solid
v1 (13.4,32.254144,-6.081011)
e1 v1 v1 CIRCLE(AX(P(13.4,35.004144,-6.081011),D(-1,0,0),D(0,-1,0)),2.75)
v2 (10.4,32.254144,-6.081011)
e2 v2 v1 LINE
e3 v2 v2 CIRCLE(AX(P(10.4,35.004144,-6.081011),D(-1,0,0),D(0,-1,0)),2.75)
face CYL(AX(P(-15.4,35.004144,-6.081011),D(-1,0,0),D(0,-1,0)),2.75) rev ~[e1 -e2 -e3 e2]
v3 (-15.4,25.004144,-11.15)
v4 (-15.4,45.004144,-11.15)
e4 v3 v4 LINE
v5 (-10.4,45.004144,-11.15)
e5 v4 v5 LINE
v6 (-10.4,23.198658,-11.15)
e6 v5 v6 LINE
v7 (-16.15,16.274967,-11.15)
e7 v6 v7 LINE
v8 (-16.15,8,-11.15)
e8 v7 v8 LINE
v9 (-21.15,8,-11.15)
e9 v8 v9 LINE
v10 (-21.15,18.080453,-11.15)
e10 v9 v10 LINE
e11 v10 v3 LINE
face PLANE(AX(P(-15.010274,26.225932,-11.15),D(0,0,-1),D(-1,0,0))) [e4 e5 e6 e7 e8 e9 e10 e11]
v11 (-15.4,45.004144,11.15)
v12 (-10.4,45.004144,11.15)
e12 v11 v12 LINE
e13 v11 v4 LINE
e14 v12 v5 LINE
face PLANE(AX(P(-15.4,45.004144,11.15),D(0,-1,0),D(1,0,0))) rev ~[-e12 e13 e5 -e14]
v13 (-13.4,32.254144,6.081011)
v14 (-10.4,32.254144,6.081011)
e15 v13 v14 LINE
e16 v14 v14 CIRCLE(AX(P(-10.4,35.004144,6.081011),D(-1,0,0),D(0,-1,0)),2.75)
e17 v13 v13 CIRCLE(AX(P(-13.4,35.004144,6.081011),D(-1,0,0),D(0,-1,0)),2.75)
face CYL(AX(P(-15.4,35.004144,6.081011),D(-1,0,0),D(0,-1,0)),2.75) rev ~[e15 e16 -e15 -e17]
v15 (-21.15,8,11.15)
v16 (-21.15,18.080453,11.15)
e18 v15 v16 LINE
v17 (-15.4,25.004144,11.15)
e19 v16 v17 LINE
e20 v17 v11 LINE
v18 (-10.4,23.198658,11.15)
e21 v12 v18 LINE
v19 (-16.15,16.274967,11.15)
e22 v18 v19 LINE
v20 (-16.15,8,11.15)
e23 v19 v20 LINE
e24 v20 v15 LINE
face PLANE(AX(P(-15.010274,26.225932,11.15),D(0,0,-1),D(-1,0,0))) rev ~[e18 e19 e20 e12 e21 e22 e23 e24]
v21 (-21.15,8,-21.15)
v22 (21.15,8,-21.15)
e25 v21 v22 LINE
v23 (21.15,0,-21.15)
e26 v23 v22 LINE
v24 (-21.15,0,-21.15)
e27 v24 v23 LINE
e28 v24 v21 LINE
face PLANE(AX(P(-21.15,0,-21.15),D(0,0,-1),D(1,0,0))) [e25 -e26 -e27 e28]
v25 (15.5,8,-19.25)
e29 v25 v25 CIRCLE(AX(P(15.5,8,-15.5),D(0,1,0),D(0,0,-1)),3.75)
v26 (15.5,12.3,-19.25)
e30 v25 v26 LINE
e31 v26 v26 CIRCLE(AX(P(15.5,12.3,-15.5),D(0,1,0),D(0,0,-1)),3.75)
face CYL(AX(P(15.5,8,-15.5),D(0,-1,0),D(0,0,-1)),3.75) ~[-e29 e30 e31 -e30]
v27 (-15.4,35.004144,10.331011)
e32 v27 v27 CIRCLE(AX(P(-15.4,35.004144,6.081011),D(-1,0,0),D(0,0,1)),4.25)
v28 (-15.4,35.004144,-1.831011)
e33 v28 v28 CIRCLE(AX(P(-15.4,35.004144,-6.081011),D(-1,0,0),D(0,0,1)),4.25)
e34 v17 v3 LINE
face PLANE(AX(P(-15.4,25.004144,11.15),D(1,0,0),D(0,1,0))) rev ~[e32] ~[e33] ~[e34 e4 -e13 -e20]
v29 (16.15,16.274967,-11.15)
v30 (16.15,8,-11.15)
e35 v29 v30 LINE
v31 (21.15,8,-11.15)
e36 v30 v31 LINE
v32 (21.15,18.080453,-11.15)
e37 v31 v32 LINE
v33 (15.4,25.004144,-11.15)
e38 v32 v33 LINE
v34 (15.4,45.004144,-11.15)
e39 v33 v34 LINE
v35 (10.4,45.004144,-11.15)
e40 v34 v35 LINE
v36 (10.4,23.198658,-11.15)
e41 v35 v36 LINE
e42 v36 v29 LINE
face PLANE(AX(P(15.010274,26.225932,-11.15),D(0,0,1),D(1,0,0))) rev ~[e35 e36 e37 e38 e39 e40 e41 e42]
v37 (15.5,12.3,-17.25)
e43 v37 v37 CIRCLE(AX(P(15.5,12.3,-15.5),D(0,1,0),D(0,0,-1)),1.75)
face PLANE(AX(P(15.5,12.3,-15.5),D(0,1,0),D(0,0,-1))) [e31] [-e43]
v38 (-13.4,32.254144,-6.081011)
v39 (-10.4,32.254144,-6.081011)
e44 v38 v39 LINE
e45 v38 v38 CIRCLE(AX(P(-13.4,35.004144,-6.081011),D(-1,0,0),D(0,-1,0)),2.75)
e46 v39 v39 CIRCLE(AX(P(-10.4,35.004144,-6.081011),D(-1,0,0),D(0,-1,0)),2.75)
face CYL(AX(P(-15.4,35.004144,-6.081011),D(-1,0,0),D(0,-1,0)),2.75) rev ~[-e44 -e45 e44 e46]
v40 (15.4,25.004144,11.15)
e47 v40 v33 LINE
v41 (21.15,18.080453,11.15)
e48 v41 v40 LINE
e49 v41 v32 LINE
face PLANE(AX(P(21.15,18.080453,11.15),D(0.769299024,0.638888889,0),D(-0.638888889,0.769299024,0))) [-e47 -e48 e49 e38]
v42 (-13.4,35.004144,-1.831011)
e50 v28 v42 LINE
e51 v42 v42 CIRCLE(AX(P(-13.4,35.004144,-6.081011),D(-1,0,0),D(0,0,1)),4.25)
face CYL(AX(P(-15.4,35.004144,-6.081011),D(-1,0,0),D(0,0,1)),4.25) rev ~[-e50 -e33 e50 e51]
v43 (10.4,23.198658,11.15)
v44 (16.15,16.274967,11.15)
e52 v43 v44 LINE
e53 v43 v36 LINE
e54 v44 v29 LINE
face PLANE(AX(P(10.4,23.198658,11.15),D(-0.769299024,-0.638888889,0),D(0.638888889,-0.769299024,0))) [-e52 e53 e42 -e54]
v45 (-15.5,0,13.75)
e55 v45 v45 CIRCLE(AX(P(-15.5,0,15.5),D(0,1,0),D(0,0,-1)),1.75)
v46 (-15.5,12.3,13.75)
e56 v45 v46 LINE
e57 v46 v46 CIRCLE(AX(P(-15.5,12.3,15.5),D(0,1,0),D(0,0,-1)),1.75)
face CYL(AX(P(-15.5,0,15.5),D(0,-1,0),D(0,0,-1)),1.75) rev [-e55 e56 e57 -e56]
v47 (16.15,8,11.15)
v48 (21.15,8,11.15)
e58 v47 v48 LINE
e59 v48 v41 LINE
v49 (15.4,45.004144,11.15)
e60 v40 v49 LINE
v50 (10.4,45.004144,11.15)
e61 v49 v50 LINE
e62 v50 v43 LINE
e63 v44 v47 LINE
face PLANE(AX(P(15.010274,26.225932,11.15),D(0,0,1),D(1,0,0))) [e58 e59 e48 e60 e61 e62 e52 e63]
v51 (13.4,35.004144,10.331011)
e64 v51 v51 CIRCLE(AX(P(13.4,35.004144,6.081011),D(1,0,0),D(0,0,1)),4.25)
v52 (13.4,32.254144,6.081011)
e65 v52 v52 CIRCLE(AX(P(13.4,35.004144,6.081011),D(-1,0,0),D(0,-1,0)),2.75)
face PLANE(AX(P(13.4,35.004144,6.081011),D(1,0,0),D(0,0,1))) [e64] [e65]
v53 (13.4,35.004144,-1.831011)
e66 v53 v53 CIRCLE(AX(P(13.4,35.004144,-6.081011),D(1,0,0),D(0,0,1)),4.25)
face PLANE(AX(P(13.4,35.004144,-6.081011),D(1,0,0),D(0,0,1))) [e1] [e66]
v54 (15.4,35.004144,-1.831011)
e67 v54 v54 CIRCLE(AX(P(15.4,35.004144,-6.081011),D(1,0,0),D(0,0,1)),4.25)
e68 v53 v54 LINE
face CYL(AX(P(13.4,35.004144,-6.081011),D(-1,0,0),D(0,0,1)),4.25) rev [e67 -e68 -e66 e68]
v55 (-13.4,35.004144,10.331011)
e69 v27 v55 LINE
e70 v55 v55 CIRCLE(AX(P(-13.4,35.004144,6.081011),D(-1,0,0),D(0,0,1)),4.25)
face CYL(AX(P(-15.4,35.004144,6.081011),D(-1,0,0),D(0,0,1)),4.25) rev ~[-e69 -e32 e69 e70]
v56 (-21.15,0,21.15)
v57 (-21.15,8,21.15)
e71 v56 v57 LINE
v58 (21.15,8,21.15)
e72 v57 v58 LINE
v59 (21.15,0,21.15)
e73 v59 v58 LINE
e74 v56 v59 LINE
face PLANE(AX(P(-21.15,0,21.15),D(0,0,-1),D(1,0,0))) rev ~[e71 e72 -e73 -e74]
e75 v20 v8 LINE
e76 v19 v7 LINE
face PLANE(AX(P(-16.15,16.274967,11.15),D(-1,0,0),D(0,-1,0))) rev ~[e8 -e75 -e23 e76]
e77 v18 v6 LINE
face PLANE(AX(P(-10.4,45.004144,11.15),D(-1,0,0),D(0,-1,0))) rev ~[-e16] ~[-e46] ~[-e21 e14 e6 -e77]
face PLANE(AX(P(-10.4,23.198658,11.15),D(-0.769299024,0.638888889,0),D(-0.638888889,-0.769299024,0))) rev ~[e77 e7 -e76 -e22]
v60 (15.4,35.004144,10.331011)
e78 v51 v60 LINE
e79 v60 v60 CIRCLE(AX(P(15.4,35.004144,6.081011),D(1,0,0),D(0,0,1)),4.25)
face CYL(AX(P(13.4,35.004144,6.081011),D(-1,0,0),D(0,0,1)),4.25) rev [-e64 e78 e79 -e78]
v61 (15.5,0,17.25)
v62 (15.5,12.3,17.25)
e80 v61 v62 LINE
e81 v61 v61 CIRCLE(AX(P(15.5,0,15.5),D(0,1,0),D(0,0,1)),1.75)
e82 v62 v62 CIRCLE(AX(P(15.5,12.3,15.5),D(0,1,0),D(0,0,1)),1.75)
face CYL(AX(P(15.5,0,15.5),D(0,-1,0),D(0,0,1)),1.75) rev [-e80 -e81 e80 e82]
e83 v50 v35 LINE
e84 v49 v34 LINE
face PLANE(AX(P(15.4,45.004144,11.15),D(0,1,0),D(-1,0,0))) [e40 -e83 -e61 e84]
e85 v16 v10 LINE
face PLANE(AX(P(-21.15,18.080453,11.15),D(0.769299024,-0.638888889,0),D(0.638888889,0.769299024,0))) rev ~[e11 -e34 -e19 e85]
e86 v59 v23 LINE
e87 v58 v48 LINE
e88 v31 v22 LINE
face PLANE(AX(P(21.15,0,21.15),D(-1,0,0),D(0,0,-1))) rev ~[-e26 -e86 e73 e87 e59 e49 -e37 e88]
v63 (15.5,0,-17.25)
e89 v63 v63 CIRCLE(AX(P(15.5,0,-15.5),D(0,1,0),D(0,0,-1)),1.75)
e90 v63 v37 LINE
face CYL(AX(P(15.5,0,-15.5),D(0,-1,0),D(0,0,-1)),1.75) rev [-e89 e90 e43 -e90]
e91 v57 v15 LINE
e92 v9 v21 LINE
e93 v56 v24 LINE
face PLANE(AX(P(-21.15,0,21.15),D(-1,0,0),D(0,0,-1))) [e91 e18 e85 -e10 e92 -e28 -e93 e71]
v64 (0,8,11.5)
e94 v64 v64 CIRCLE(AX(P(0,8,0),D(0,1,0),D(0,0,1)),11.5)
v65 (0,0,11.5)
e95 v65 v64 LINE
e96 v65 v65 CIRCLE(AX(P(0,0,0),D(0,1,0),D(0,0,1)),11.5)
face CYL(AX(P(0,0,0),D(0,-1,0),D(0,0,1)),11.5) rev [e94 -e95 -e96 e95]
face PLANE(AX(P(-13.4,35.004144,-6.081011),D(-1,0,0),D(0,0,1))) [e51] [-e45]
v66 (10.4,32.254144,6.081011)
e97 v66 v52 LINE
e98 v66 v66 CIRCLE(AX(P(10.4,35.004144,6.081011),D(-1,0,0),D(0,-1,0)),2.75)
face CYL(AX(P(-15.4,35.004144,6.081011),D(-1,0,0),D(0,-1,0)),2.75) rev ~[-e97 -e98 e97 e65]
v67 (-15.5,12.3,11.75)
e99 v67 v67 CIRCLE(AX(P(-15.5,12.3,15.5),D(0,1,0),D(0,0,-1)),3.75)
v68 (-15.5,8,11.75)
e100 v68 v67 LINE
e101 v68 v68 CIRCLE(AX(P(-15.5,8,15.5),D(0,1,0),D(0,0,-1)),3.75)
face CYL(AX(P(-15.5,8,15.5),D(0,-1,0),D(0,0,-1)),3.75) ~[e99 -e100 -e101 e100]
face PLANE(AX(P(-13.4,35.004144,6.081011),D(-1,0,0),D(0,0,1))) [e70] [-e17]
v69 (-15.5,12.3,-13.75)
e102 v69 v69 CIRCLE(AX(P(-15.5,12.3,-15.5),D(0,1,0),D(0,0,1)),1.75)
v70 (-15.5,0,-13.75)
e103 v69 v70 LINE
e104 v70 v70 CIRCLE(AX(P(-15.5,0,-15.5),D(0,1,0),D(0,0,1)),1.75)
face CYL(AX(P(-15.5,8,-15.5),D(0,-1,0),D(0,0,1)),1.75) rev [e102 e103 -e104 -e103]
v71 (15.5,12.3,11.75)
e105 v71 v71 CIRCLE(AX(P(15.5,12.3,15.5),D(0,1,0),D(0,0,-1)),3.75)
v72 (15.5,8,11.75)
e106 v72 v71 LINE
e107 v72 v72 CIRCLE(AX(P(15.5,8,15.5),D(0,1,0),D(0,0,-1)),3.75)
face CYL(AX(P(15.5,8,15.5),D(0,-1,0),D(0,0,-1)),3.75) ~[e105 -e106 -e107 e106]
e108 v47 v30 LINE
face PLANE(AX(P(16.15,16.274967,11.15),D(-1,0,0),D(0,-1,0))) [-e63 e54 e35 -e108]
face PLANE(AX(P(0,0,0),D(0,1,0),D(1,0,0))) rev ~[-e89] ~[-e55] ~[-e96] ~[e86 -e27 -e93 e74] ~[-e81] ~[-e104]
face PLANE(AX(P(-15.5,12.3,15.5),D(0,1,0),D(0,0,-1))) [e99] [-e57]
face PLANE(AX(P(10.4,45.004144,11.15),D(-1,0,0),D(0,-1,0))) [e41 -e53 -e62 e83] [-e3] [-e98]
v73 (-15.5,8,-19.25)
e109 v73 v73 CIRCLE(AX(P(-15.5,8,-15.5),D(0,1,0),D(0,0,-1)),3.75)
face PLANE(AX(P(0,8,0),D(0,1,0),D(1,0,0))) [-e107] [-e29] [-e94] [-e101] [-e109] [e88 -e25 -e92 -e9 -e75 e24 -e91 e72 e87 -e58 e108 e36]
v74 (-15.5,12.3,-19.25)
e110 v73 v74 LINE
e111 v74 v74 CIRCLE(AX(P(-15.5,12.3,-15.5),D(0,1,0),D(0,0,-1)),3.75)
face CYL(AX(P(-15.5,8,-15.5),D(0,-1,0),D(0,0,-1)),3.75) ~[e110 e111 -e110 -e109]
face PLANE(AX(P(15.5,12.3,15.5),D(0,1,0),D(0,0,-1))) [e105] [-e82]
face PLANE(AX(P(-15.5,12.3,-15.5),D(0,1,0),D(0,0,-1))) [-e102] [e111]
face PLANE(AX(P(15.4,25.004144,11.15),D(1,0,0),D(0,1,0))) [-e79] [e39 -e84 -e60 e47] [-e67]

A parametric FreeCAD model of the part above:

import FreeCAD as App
import Part
import Sketcher


def add_polygon(sketch, points):
    """Adds a closed chain of lines whose ends are joined by coincident constraints."""
    first, n = sketch.GeometryCount, len(points)
    for a, b in zip(points, points[1:] + points[:1]):
        sketch.addGeometry(Part.LineSegment(App.Vector(*a, 0), App.Vector(*b, 0)), False)
    for i in range(n):
        sketch.addConstraint(Sketcher.Constraint("Coincident", first + i, 2, first + (i + 1) % n, 1))

doc = App.newDocument("Part")
body = doc.addObject("PartDesign::Body", "Body")

# Sketch on XZ plane
sketch1 = doc.addObject("Sketcher::SketchObject", "Sketch")
body.addObject(sketch1)
sketch1.AttachmentSupport = (doc.XZ_Plane, [""])
sketch1.MapMode = "FlatFace"
add_polygon(sketch1, [(-21.15, -21.15), (-21.15, 21.15), (21.15, 21.15), (21.15, -21.15)])  # lines 0-3
sketch1.addGeometry(Part.Circle(App.Vector(-15.5, 15.5, 0), App.Vector(0, 0, 1), 1.75), False)  # 4
sketch1.addGeometry(Part.Circle(App.Vector(15.5, 15.5, 0), App.Vector(0, 0, 1), 1.75), False)  # 5
sketch1.addGeometry(Part.Circle(App.Vector(-15.5, -15.5, 0), App.Vector(0, 0, 1), 1.75), False)  # 6
sketch1.addGeometry(Part.Circle(App.Vector(0, 0, 0), App.Vector(0, 0, 1), 11.5), False)  # 7
sketch1.addGeometry(Part.Circle(App.Vector(15.5, -15.5, 0), App.Vector(0, 0, 1), 1.75), False)  # 8
sketch1.addConstraint(Sketcher.Constraint("Vertical", 0))
sketch1.addConstraint(Sketcher.Constraint("Horizontal", 1))
sketch1.addConstraint(Sketcher.Constraint("Vertical", 2))
sketch1.addConstraint(Sketcher.Constraint("Horizontal", 3))
sketch1.addConstraint(Sketcher.Constraint("Coincident", 7, 3, -1, 1))
sketch1.addConstraint(Sketcher.Constraint("Equal", 4, 5))
sketch1.addConstraint(Sketcher.Constraint("Equal", 5, 6))
sketch1.addConstraint(Sketcher.Constraint("Equal", 6, 8))
sketch1.addConstraint(Sketcher.Constraint("Symmetric", 5, 3, 6, 3, -1, 1))
sketch1.addConstraint(Sketcher.Constraint("Symmetric", 4, 3, 8, 3, -1, 1))
sketch1.addConstraint(Sketcher.Constraint("Symmetric", 0, 2, 2, 2, -1, 1))
sketch1.addConstraint(Sketcher.Constraint("Symmetric", 4, 3, 5, 3, -2))
sketch1.addConstraint(Sketcher.Constraint("Equal", 3, 0))
sketch1.addConstraint(Sketcher.Constraint("Diameter", 7, 23.0))
sketch1.addConstraint(Sketcher.Constraint("Diameter", 4, 3.5))
sketch1.addConstraint(Sketcher.Constraint("DistanceX", 1, 1, 1, 2, 42.3))
sketch1.addConstraint(Sketcher.Constraint("DistanceX", 4, 3, 5, 3, 31.0))
sketch1.addConstraint(Sketcher.Constraint("DistanceY", 6, 3, 4, 3, 31.0))
pad1 = doc.addObject("PartDesign::Pad", "Pad")
body.addObject(pad1)
pad1.Profile = sketch1
pad1.Length = 8
pad1.Reversed = True

# Sketch on XY plane
sketch2 = doc.addObject("Sketcher::SketchObject", "Sketch001")
body.addObject(sketch2)
sketch2.AttachmentSupport = (doc.XY_Plane, [""])
sketch2.MapMode = "FlatFace"
sketch2.AttachmentOffset = App.Placement(App.Vector(0, 0, 11.15), App.Rotation())
add_polygon(sketch2, [(-21.15, 18.080453), (-21.15, 8), (-16.15, 8), (-16.15, 16.274967), (-10.4, 23.198658), (-10.4, 45.004144), (-15.4, 45.004144), (-15.4, 25.004144)])  # lines 0-7
add_polygon(sketch2, [(16.15, 16.274967), (16.15, 8), (21.15, 8), (21.15, 18.080453), (15.4, 25.004144), (15.4, 45.004144), (10.4, 45.004144), (10.4, 23.198658)])  # lines 8-15
sketch2.addConstraint(Sketcher.Constraint("Vertical", 0))
sketch2.addConstraint(Sketcher.Constraint("Horizontal", 1))
sketch2.addConstraint(Sketcher.Constraint("Vertical", 2))
sketch2.addConstraint(Sketcher.Constraint("Vertical", 4))
sketch2.addConstraint(Sketcher.Constraint("Horizontal", 5))
sketch2.addConstraint(Sketcher.Constraint("Vertical", 6))
sketch2.addConstraint(Sketcher.Constraint("Vertical", 8))
sketch2.addConstraint(Sketcher.Constraint("Horizontal", 9))
sketch2.addConstraint(Sketcher.Constraint("Vertical", 10))
sketch2.addConstraint(Sketcher.Constraint("Vertical", 12))
sketch2.addConstraint(Sketcher.Constraint("Horizontal", 13))
sketch2.addConstraint(Sketcher.Constraint("Vertical", 14))
sketch2.addConstraint(Sketcher.Constraint("Symmetric", 1, 2, 8, 2, -2))
sketch2.addConstraint(Sketcher.Constraint("Symmetric", 7, 2, 10, 2, -2))
sketch2.addConstraint(Sketcher.Constraint("Symmetric", 6, 2, 11, 2, -2))
sketch2.addConstraint(Sketcher.Constraint("Symmetric", 4, 2, 13, 2, -2))
sketch2.addConstraint(Sketcher.Constraint("Parallel", 3, 7))
sketch2.addConstraint(Sketcher.Constraint("Parallel", 11, 15))
sketch2.addConstraint(Sketcher.Constraint("Horizontal", 3, 2, 14, 2))
sketch2.addConstraint(Sketcher.Constraint("Equal", 1, 5))
sketch2.addConstraint(Sketcher.Constraint("DistanceX", 1, 1, 1, 2, 5.0))
sketch2.addConstraint(Sketcher.Constraint("DistanceY", 6, 2, 6, 1, 20.0))
sketch2.addConstraint(Sketcher.Constraint("Distance", 3, 9.0))
sketch2.addConstraint(Sketcher.Constraint("DistanceY", -1, 1, 0, 2, 8.0))
sketch2.addConstraint(Sketcher.Constraint("DistanceX", 3, 2, -1, 1, 10.4))
sketch2.addConstraint(Sketcher.Constraint("DistanceX", 1, 2, 8, 2, 32.3))
sketch2.addConstraint(Sketcher.Constraint("DistanceY", 0, 2, 0, 1, 10.080453))
sketch2.addConstraint(Sketcher.Constraint("DistanceY", 2, 1, 2, 2, 8.274967))
pad2 = doc.addObject("PartDesign::Pad", "Pad001")
body.addObject(pad2)
pad2.Profile = sketch2
pad2.Length = 22.3
pad2.Reversed = True

# Sketch on YZ plane
sketch3 = doc.addObject("Sketcher::SketchObject", "Sketch002")
body.addObject(sketch3)
sketch3.AttachmentSupport = (doc.YZ_Plane, [""])
sketch3.MapMode = "FlatFace"
sketch3.AttachmentOffset = App.Placement(App.Vector(0, 0, -15.4), App.Rotation())
sketch3.addGeometry(Part.Circle(App.Vector(35.004144, -6.081011, 0), App.Vector(0, 0, 1), 2.75), False)
sketch3.addGeometry(Part.Circle(App.Vector(35.004144, 6.081011, 0), App.Vector(0, 0, 1), 2.75), False)
sketch3.addConstraint(Sketcher.Constraint("Equal", 0, 1))
sketch3.addConstraint(Sketcher.Constraint("Symmetric", 0, 3, 1, 3, -1))
sketch3.addConstraint(Sketcher.Constraint("Diameter", 0, 5.5))
sketch3.addConstraint(Sketcher.Constraint("DistanceY", 0, 3, -1, 1, 6.081011))
sketch3.addConstraint(Sketcher.Constraint("DistanceX", -1, 1, 0, 3, 35.004144))
pocket1 = doc.addObject("PartDesign::Pocket", "Pocket")
body.addObject(pocket1)
pocket1.Profile = sketch3
pocket1.Type = "ThroughAll"
pocket1.Reversed = True

# Sketch on XZ plane
sketch4 = doc.addObject("Sketcher::SketchObject", "Sketch003")
body.addObject(sketch4)
sketch4.AttachmentSupport = (doc.XZ_Plane, [""])
sketch4.MapMode = "FlatFace"
sketch4.AttachmentOffset = App.Placement(App.Vector(0, 0, -8), App.Rotation())
sketch4.addGeometry(Part.Circle(App.Vector(-15.5, -15.5, 0), App.Vector(0, 0, 1), 3.75), False)
sketch4.addGeometry(Part.Circle(App.Vector(-15.5, -15.5, 0), App.Vector(0, 0, 1), 1.75), False)
sketch4.addGeometry(Part.Circle(App.Vector(15.5, -15.5, 0), App.Vector(0, 0, 1), 3.75), False)
sketch4.addGeometry(Part.Circle(App.Vector(15.5, -15.5, 0), App.Vector(0, 0, 1), 1.75), False)
sketch4.addGeometry(Part.Circle(App.Vector(15.5, 15.5, 0), App.Vector(0, 0, 1), 3.75), False)
sketch4.addGeometry(Part.Circle(App.Vector(15.5, 15.5, 0), App.Vector(0, 0, 1), 1.75), False)
sketch4.addGeometry(Part.Circle(App.Vector(-15.5, 15.5, 0), App.Vector(0, 0, 1), 3.75), False)
sketch4.addGeometry(Part.Circle(App.Vector(-15.5, 15.5, 0), App.Vector(0, 0, 1), 1.75), False)
sketch4.addConstraint(Sketcher.Constraint("Coincident", 1, 3, 0, 3))
sketch4.addConstraint(Sketcher.Constraint("Coincident", 3, 3, 2, 3))
sketch4.addConstraint(Sketcher.Constraint("Coincident", 5, 3, 4, 3))
sketch4.addConstraint(Sketcher.Constraint("Coincident", 7, 3, 6, 3))
sketch4.addConstraint(Sketcher.Constraint("Equal", 0, 2))
sketch4.addConstraint(Sketcher.Constraint("Equal", 1, 3))
sketch4.addConstraint(Sketcher.Constraint("Equal", 2, 4))
sketch4.addConstraint(Sketcher.Constraint("Equal", 3, 5))
sketch4.addConstraint(Sketcher.Constraint("Equal", 4, 6))
sketch4.addConstraint(Sketcher.Constraint("Equal", 5, 7))
sketch4.addConstraint(Sketcher.Constraint("Symmetric", 0, 3, 4, 3, -1, 1))
sketch4.addConstraint(Sketcher.Constraint("Symmetric", 2, 3, 6, 3, -1, 1))
sketch4.addConstraint(Sketcher.Constraint("Symmetric", 0, 3, 2, 3, -2))
sketch4.addConstraint(Sketcher.Constraint("Diameter", 0, 7.5))
sketch4.addConstraint(Sketcher.Constraint("Diameter", 1, 3.5))
sketch4.addConstraint(Sketcher.Constraint("DistanceX", 0, 3, 2, 3, 31.0))
sketch4.addConstraint(Sketcher.Constraint("DistanceY", 2, 3, 4, 3, 31.0))
pad3 = doc.addObject("PartDesign::Pad", "Pad002")
body.addObject(pad3)
pad3.Profile = sketch4
pad3.Length = 4.3
pad3.Reversed = True

# Sketch on YZ plane
sketch5 = doc.addObject("Sketcher::SketchObject", "Sketch004")
body.addObject(sketch5)
sketch5.AttachmentSupport = (doc.YZ_Plane, [""])
sketch5.MapMode = "FlatFace"
sketch5.AttachmentOffset = App.Placement(App.Vector(0, 0, -15.4), App.Rotation())
sketch5.addGeometry(Part.Circle(App.Vector(35.004144, -6.081011, 0), App.Vector(0, 0, 1), 4.25), False)
sketch5.addGeometry(Part.Circle(App.Vector(35.004144, 6.081011, 0), App.Vector(0, 0, 1), 4.25), False)
sketch5.addConstraint(Sketcher.Constraint("Equal", 0, 1))
sketch5.addConstraint(Sketcher.Constraint("Symmetric", 0, 3, 1, 3, -1))
sketch5.addConstraint(Sketcher.Constraint("Diameter", 0, 8.5))
sketch5.addConstraint(Sketcher.Constraint("DistanceY", 0, 3, -1, 1, 6.081011))
sketch5.addConstraint(Sketcher.Constraint("DistanceX", -1, 1, 0, 3, 35.004144))
pocket2 = doc.addObject("PartDesign::Pocket", "Pocket001")
body.addObject(pocket2)
pocket2.Profile = sketch5
pocket2.Length = 2
pocket2.Reversed = True

# Sketch on YZ plane
sketch6 = doc.addObject("Sketcher::SketchObject", "Sketch005")
body.addObject(sketch6)
sketch6.AttachmentSupport = (doc.YZ_Plane, [""])
sketch6.MapMode = "FlatFace"
sketch6.AttachmentOffset = App.Placement(App.Vector(0, 0, 13.4), App.Rotation())
sketch6.addGeometry(Part.Circle(App.Vector(35.004144, 6.081011, 0), App.Vector(0, 0, 1), 4.25), False)
sketch6.addGeometry(Part.Circle(App.Vector(35.004144, -6.081011, 0), App.Vector(0, 0, 1), 4.25), False)
sketch6.addConstraint(Sketcher.Constraint("Equal", 0, 1))
sketch6.addConstraint(Sketcher.Constraint("Symmetric", 0, 3, 1, 3, -1))
sketch6.addConstraint(Sketcher.Constraint("Diameter", 0, 8.5))
sketch6.addConstraint(Sketcher.Constraint("DistanceY", -1, 1, 0, 3, 6.081011))
sketch6.addConstraint(Sketcher.Constraint("DistanceX", -1, 1, 0, 3, 35.004144))
pocket3 = doc.addObject("PartDesign::Pocket", "Pocket002")
body.addObject(pocket3)
pocket3.Profile = sketch6
pocket3.Length = 2
pocket3.Reversed = True

doc.recompute()
